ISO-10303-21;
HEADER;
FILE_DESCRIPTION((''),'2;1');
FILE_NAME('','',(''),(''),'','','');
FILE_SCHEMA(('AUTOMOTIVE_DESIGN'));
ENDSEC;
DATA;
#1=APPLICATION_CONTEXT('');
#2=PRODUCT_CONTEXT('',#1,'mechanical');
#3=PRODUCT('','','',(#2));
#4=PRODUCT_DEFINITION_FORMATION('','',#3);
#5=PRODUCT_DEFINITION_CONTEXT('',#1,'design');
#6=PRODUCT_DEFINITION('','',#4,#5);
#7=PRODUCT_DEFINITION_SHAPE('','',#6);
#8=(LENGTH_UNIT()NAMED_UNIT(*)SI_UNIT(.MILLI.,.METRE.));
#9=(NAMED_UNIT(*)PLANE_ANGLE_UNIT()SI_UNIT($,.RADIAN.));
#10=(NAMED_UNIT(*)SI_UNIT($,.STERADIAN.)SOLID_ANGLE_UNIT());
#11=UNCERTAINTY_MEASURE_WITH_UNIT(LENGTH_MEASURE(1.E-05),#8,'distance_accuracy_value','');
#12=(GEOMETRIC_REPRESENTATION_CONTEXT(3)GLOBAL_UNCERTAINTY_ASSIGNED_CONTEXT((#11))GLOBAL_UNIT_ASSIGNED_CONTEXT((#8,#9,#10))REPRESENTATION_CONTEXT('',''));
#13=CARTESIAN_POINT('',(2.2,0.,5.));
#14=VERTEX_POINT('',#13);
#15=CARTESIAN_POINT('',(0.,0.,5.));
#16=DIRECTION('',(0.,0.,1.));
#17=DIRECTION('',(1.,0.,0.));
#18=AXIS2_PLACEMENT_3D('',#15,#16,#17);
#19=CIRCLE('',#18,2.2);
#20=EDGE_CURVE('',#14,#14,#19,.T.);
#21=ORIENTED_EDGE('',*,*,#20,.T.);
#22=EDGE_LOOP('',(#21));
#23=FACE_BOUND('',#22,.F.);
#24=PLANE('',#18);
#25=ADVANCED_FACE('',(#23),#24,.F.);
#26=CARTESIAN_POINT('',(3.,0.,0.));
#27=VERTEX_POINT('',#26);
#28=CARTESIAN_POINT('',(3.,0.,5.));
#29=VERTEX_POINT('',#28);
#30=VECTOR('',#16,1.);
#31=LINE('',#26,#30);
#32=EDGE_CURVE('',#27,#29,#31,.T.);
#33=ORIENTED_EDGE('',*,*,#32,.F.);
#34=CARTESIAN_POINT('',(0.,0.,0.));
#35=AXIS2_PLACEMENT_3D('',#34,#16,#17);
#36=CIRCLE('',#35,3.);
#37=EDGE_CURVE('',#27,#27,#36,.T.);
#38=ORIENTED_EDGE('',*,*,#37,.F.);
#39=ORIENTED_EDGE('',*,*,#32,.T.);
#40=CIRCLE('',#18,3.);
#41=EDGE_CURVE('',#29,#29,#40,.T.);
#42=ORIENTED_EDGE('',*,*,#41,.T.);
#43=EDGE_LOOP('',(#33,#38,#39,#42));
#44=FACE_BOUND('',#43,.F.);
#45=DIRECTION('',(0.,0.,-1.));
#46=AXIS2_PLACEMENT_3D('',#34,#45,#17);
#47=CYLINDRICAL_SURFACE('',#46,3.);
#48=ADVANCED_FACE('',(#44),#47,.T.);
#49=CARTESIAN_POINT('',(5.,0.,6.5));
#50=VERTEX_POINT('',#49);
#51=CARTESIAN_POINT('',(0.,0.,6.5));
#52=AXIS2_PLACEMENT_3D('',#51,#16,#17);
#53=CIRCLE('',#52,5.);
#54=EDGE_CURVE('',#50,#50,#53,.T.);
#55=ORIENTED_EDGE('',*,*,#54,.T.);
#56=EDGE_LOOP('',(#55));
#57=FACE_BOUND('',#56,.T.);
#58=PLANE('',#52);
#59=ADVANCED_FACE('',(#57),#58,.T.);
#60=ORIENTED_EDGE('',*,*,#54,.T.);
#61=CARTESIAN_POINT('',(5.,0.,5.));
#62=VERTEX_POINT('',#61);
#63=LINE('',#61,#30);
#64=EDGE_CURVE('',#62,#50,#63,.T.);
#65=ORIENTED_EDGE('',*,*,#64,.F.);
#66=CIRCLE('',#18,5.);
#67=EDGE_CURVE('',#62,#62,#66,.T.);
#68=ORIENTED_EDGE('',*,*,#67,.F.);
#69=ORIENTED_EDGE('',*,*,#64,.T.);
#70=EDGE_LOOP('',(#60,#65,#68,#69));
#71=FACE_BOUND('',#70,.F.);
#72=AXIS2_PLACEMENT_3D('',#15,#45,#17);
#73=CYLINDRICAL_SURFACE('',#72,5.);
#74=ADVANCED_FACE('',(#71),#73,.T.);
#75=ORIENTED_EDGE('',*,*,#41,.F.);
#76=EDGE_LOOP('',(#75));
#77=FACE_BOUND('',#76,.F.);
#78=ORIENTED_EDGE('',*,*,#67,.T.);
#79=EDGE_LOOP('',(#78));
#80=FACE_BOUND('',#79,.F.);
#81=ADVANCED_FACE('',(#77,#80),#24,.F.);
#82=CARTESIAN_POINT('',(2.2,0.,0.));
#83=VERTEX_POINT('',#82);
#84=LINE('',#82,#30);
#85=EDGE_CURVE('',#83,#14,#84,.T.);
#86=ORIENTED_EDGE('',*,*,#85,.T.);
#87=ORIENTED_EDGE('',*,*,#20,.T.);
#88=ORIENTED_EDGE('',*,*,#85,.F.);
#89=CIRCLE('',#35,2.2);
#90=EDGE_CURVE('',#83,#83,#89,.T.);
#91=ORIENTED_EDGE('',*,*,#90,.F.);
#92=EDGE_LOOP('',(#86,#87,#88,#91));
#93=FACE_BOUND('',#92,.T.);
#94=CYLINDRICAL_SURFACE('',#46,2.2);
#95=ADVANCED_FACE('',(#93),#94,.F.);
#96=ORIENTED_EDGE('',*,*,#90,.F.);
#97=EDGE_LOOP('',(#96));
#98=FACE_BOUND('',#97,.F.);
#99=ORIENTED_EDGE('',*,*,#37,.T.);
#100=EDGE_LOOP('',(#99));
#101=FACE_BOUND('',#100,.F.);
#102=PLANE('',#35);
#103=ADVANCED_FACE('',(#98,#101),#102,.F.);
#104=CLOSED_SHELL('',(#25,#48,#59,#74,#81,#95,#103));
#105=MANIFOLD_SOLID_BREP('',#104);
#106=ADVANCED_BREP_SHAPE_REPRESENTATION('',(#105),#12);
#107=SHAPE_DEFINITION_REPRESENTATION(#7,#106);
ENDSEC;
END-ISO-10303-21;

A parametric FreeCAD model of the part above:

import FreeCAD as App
import Part
import Sketcher
from FreeCAD import Vector

doc = App.newDocument("Part")
params = doc.addObject("Spreadsheet::Sheet", "Params")
for row, (alias, value) in enumerate([
    ("sketch1_diameter", "10 mm"),
    ("pad1_length", "1.5 mm"),
    ("sketch2_diameter", "4.4 mm"),
    ("pad2_length", "5 mm"),
    ("sketch3_diameter", "6 mm"),
    ("pad3_length", "5 mm"),
], start=1):
    params.set(f"A{row}", alias)
    params.set(f"B{row}", "=" + value)
    params.setAlias(f"B{row}", alias)

body = doc.addObject("PartDesign::Body", "Body")

# Sketch on XY plane
sketch1 = body.newObject("Sketcher::SketchObject", "Sketch")
sketch1.AttachmentSupport = (doc.getObject("XY_Plane"), [""])
sketch1.MapMode = "FlatFace"
sketch1.AttachmentOffset = App.Placement(Vector(0, 0, 5), App.Rotation())
sketch1.addGeometry(Part.Circle(Vector(0, 0, 0), Vector(0, 0, 1), 5), False)
sketch1.addConstraint([
    Sketcher.Constraint("Coincident", 0, 3, -1, 1),
    Sketcher.Constraint("Diameter", 0, 10.0),
])
sketch1.setExpression("Constraints[1]", "Params.sketch1_diameter")
pad1 = body.newObject("PartDesign::Pad", "Pad")
pad1.Profile = sketch1
pad1.setExpression("Length", "Params.pad1_length")
body2 = doc.addObject("PartDesign::Body", "Body001")

# Sketch on XY plane
sketch2 = body2.newObject("Sketcher::SketchObject", "Sketch001")
sketch2.AttachmentSupport = (doc.getObject("XY_Plane001"), [""])
sketch2.MapMode = "FlatFace"
sketch2.addGeometry(Part.Circle(Vector(0, 0, 0), Vector(0, 0, 1), 2.2), False)
sketch2.addConstraint([
    Sketcher.Constraint("Coincident", 0, 3, -1, 1),
    Sketcher.Constraint("Diameter", 0, 4.4),
])
sketch2.setExpression("Constraints[1]", "Params.sketch2_diameter")
pad2 = body2.newObject("PartDesign::Pad", "Pad001")
pad2.Profile = sketch2
pad2.setExpression("Length", "Params.pad2_length")
body3 = doc.addObject("PartDesign::Body", "Body002")

# Sketch on XY plane
sketch3 = body3.newObject("Sketcher::SketchObject", "Sketch002")
sketch3.AttachmentSupport = (doc.getObject("XY_Plane002"), [""])
sketch3.MapMode = "FlatFace"
sketch3.addGeometry(Part.Circle(Vector(0, 0, 0), Vector(0, 0, 1), 3), False)
sketch3.addConstraint([
    Sketcher.Constraint("Coincident", 0, 3, -1, 1),
    Sketcher.Constraint("Diameter", 0, 6.0),
])
sketch3.setExpression("Constraints[1]", "Params.sketch3_diameter")
pad3 = body3.newObject("PartDesign::Pad", "Pad002")
pad3.Profile = sketch3
pad3.setExpression("Length", "Params.pad3_length")
doc.recompute()

boolean = body3.newObject("PartDesign::Boolean", "Boolean")
boolean.Type = "Cut"
boolean.addObjects([body2])
doc.recompute()

boolean2 = body3.newObject("PartDesign::Boolean", "Boolean001")
boolean2.Type = "Fuse"
boolean2.addObjects([body])

doc.recompute()
